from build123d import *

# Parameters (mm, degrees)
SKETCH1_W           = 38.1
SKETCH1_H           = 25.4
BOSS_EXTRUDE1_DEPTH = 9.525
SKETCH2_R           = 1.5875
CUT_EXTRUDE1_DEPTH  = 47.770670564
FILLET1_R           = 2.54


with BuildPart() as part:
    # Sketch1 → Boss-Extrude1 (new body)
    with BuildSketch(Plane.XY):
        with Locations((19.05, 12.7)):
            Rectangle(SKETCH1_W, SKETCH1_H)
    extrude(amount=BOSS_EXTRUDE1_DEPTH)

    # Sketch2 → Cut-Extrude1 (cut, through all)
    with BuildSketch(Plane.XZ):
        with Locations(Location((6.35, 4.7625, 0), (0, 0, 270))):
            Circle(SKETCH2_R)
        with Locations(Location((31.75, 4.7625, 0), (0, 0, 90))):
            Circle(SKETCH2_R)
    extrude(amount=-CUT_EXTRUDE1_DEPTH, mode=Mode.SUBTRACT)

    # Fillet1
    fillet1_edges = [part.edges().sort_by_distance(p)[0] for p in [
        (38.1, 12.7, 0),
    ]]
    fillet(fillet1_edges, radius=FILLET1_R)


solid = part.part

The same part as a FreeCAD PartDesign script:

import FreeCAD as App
import Part
import Sketcher

V = App.Vector
Q = App.Units.Quantity


def edges_at(feature, points):
    """Names of the edges that pass closest to the given points."""
    edges = feature.Shape.Edges
    near = lambda p: min(range(len(edges)), key=lambda i: edges[i].distToShape(Part.Vertex(*p))[0])
    return sorted({f"Edge{near(p) + 1}" for p in points})


def add_polygon(sketch, points):
    """Adds a closed chain of lines whose ends are joined by coincident constraints."""
    first, n = sketch.GeometryCount, len(points)
    for a, b in zip(points, points[1:] + points[:1]):
        sketch.addGeometry(Part.LineSegment(App.Vector(*a, 0), App.Vector(*b, 0)), False)
    for i in range(n):
        sketch.addConstraint(Sketcher.Constraint("Coincident", first + i, 2, first + (i + 1) % n, 1))

doc = App.newDocument("Part")
body = doc.addObject("PartDesign::Body", "Body")

# Sketch on XY plane
sketch1 = body.newObject("Sketcher::SketchObject", "Sketch")
sketch1.AttachmentSupport = (doc.getObject("XY_Plane"), [""])
sketch1.MapMode = "FlatFace"
add_polygon(sketch1, [(0, 25), (0, 0), (38, 0), (38, 25)])  # lines 0-3
sketch1.addConstraint([
    Sketcher.Constraint("Vertical", 0),
    Sketcher.Constraint("Horizontal", 1),
    Sketcher.Constraint("Vertical", 2),
    Sketcher.Constraint("Horizontal", 3),
    Sketcher.Constraint("Coincident", 0, 2, -1, 1),
    Sketcher.Constraint("DistanceY", 0, 2, 0, 1, Q("1 in")),
    Sketcher.Constraint("DistanceX", 1, 1, 1, 2, Q("1.5 in")),
])
pad1 = body.newObject("PartDesign::Pad", "Pad")
pad1.Profile = sketch1
pad1.Length = Q("0.375 in")

# Sketch on XZ plane
sketch2 = body.newObject("Sketcher::SketchObject", "Sketch001")
sketch2.AttachmentSupport = (doc.getObject("XZ_Plane"), [""])
sketch2.MapMode = "FlatFace"
sketch2.addGeometry([
    Part.Circle(V(6.3, 4.8, 0), V(0, 0, 1), 1.6),
    Part.Circle(V(31.8, 4.8, 0), V(0, 0, 1), 1.6),
], False)
sketch2.addConstraint([
    Sketcher.Constraint("Equal", 0, 1),
    Sketcher.Constraint("Horizontal", 0, 3, 1, 3),
    Sketcher.Constraint("Diameter", 0, Q("0.125 in")),
    Sketcher.Constraint("DistanceX", 0, 3, 1, 3, Q("1 in")),
    Sketcher.Constraint("DistanceX", -1, 1, 0, 3, Q("0.25 in")),
    Sketcher.Constraint("DistanceY", -1, 1, 0, 3, Q("0.1875 in")),
])
pocket1 = body.newObject("PartDesign::Pocket", "Pocket")
pocket1.Profile = sketch2
pocket1.Type = "ThroughAll"
doc.recompute()

fillet = body.newObject("PartDesign::Fillet", "Fillet")
fillet.Base = (pocket1, edges_at(pocket1, [(38.1, 12.7, 0)]))
fillet.Radius = Q("0.1 in")

doc.recompute()
